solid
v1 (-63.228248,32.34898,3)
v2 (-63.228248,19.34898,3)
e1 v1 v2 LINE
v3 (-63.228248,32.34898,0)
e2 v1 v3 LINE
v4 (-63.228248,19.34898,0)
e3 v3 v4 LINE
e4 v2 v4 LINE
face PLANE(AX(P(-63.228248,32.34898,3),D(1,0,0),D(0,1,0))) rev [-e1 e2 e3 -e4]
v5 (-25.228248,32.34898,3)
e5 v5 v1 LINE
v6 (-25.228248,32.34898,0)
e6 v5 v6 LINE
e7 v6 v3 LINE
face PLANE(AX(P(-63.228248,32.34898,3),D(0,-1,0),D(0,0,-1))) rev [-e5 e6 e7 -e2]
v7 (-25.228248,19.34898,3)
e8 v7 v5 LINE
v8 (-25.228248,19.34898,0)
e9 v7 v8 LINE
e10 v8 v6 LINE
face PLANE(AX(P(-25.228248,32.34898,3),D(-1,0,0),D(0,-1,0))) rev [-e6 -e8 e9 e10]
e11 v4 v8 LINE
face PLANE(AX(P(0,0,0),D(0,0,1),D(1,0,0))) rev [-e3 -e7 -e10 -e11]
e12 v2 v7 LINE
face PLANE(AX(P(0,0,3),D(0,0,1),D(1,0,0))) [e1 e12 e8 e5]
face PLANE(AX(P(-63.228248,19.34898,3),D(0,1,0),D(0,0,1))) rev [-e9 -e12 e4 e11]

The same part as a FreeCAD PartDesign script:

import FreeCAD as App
import Part
import Sketcher
from FreeCAD import Vector
Q = App.Units.Quantity


def add_polygon(sketch, points):
    """Adds a closed chain of lines whose ends are joined by coincident constraints."""
    first, n = sketch.GeometryCount, len(points)
    for a, b in zip(points, points[1:] + points[:1]):
        sketch.addGeometry(Part.LineSegment(App.Vector(*a, 0), App.Vector(*b, 0)), False)
    for i in range(n):
        sketch.addConstraint(Sketcher.Constraint("Coincident", first + i, 2, first + (i + 1) % n, 1))

doc = App.newDocument("Part")
body = doc.addObject("PartDesign::Body", "Body")

# Sketch on XY plane
sketch1 = body.newObject("Sketcher::SketchObject", "Sketch")
sketch1.AttachmentSupport = (doc.getObject("XY_Plane"), [""])
sketch1.MapMode = "FlatFace"
add_polygon(sketch1, [(-63, 32), (-63, 19), (-25, 19), (-25, 32)])  # lines 0-3
sketch1.addConstraint([
    Sketcher.Constraint("Vertical", 0),
    Sketcher.Constraint("Horizontal", 1),
    Sketcher.Constraint("Vertical", 2),
    Sketcher.Constraint("Horizontal", 3),
    Sketcher.Constraint("DistanceX", 1, 1, 1, 2, Q("38 mm")),
    Sketcher.Constraint("DistanceY", 0, 2, 0, 1, Q("13 mm")),
    Sketcher.Constraint("DistanceY", -1, 1, 0, 2, Q("19.34898 mm")),
    Sketcher.Constraint("DistanceX", 0, 2, -1, 1, Q("63.228248 mm")),
])
pad1 = body.newObject("PartDesign::Pad", "Pad")
pad1.Profile = sketch1
pad1.Length = 3

doc.recompute()
